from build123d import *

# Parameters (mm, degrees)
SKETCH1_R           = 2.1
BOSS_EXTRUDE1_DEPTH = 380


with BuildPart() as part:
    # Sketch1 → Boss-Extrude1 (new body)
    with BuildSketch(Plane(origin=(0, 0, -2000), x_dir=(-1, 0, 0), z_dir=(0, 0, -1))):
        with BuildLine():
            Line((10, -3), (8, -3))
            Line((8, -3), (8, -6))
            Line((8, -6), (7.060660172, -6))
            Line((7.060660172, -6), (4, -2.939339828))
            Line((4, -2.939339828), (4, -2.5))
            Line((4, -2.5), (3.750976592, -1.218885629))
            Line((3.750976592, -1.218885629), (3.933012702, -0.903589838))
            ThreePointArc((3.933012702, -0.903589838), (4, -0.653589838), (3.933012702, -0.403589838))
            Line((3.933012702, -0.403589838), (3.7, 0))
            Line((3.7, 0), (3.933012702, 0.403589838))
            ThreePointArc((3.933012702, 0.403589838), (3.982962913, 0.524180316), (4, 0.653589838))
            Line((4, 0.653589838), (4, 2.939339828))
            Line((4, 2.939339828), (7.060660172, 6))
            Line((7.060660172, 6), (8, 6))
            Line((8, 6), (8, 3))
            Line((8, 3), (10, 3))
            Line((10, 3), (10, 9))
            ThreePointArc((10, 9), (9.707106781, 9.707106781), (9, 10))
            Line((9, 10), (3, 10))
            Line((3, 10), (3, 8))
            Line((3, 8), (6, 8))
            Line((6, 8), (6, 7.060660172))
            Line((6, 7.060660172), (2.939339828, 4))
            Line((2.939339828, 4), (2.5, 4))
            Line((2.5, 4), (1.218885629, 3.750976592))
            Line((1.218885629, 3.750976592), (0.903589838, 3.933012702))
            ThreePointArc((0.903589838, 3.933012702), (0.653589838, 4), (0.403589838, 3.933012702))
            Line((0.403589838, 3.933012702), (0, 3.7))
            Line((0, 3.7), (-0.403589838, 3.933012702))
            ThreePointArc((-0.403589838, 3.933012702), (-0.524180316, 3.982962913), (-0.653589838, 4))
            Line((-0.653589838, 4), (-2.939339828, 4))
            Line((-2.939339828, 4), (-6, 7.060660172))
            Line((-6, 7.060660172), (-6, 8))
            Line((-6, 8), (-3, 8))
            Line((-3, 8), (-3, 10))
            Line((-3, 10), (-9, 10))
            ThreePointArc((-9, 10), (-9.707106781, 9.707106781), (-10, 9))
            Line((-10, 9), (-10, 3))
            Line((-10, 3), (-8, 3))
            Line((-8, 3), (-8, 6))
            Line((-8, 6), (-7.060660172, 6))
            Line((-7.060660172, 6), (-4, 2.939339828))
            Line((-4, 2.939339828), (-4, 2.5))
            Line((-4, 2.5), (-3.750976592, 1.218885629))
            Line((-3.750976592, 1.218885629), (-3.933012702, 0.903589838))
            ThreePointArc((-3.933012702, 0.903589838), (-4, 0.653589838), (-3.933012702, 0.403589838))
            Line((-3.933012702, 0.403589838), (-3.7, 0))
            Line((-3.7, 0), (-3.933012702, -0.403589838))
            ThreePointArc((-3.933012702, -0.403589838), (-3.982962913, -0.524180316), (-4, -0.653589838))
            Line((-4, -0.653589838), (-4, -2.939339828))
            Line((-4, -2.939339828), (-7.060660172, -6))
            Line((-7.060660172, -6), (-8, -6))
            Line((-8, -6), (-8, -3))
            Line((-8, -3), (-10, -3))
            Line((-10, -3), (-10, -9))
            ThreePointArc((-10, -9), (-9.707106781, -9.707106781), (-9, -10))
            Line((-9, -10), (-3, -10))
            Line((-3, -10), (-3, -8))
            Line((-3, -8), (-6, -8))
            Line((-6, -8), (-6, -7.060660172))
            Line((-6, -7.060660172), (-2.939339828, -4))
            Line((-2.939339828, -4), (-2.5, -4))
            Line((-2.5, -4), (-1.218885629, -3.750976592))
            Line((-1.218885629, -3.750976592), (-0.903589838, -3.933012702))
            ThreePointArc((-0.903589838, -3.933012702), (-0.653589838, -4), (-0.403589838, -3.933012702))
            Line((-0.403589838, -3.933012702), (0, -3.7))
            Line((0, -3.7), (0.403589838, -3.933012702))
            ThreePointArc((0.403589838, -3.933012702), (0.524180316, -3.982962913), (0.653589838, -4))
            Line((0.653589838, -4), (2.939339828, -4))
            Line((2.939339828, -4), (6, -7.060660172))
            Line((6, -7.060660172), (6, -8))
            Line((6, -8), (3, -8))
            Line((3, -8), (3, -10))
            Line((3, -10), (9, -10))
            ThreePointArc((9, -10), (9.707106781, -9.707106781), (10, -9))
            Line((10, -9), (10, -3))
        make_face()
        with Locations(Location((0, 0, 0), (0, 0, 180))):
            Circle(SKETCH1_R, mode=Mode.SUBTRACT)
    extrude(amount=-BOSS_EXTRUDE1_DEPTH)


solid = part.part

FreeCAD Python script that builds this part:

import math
import FreeCAD as App
import Part
import Sketcher

V = App.Vector
Q = App.Units.Quantity

doc = App.newDocument("Part")
body = doc.addObject("PartDesign::Body", "Body")

# Sketch on XY plane
sketch1 = body.newObject("Sketcher::SketchObject", "Sketch")
sketch1.AttachmentSupport = (doc.getObject("XY_Plane"), [""])
sketch1.MapMode = "FlatFace"
sketch1.AttachmentOffset = App.Placement(V(0, 0, -2000), App.Rotation())
sketch1.addGeometry(Part.LineSegment(V(-10, -3, 0), V(-8, -3, 0)), False)
sketch1.addGeometry(Part.LineSegment(V(-8, -3, 0), V(-8, -6, 0)), False)
sketch1.addGeometry(Part.LineSegment(V(-8, -6, 0), V(-7.06066, -6, 0)), False)
sketch1.addGeometry(Part.LineSegment(V(-7.06066, -6, 0), V(-4, -2.93934, 0)), False)
sketch1.addGeometry(Part.LineSegment(V(-4, -2.93934, 0), V(-4, -2.5, 0)), False)
sketch1.addGeometry(Part.LineSegment(V(-4, -2.5, 0), V(-3.750977, -1.218886, 0)), False)
sketch1.addGeometry(Part.LineSegment(V(-3.750977, -1.218886, 0), V(-3.933013, -0.90359, 0)), False)
sketch1.addGeometry(Part.ArcOfCircle(Part.Circle(V(-3.5, -0.65359, 0), V(0, 0, 1), 0.5), math.radians(150), math.radians(210)), False)
sketch1.addGeometry(Part.LineSegment(V(-3.933013, -0.40359, 0), V(-3.7, 0, 0)), False)
sketch1.addGeometry(Part.LineSegment(V(-3.7, 0, 0), V(-3.933013, 0.40359, 0)), False)
sketch1.addGeometry(Part.ArcOfCircle(Part.Circle(V(-3.5, 0.65359, 0), V(0, 0, 1), 0.5), math.radians(-180), math.radians(-150)), False)
sketch1.addGeometry(Part.LineSegment(V(-4, 0.65359, 0), V(-4, 2.93934, 0)), False)
sketch1.addGeometry(Part.LineSegment(V(-4, 2.93934, 0), V(-7.06066, 6, 0)), False)
sketch1.addGeometry(Part.LineSegment(V(-7.06066, 6, 0), V(-8, 6, 0)), False)
sketch1.addGeometry(Part.LineSegment(V(-8, 6, 0), V(-8, 3, 0)), False)
sketch1.addGeometry(Part.LineSegment(V(-8, 3, 0), V(-10, 3, 0)), False)
sketch1.addGeometry(Part.LineSegment(V(-10, 3, 0), V(-10, 9, 0)), False)
sketch1.addGeometry(Part.ArcOfCircle(Part.Circle(V(-9, 9, 0), V(0, 0, 1), 1), math.radians(90), math.radians(180)), False)
sketch1.addGeometry(Part.LineSegment(V(-9, 10, 0), V(-3, 10, 0)), False)
sketch1.addGeometry(Part.LineSegment(V(-3, 10, 0), V(-3, 8, 0)), False)
sketch1.addGeometry(Part.LineSegment(V(-3, 8, 0), V(-6, 8, 0)), False)
sketch1.addGeometry(Part.LineSegment(V(-6, 8, 0), V(-6, 7.06066, 0)), False)
sketch1.addGeometry(Part.LineSegment(V(-6, 7.06066, 0), V(-2.93934, 4, 0)), False)
sketch1.addGeometry(Part.LineSegment(V(-2.93934, 4, 0), V(-2.5, 4, 0)), False)
sketch1.addGeometry(Part.LineSegment(V(-2.5, 4, 0), V(-1.218886, 3.750977, 0)), False)
sketch1.addGeometry(Part.LineSegment(V(-1.218886, 3.750977, 0), V(-0.90359, 3.933013, 0)), False)
sketch1.addGeometry(Part.ArcOfCircle(Part.Circle(V(-0.65359, 3.5, 0), V(0, 0, 1), 0.5), math.radians(60), math.radians(120)), False)
sketch1.addGeometry(Part.LineSegment(V(-0.40359, 3.933013, 0), V(0, 3.7, 0)), False)
sketch1.addGeometry(Part.LineSegment(V(0, 3.7, 0), V(0.40359, 3.933013, 0)), False)
sketch1.addGeometry(Part.ArcOfCircle(Part.Circle(V(0.65359, 3.5, 0), V(0, 0, 1), 0.5), math.radians(90), math.radians(120)), False)
sketch1.addGeometry(Part.LineSegment(V(0.65359, 4, 0), V(2.93934, 4, 0)), False)
sketch1.addGeometry(Part.LineSegment(V(2.93934, 4, 0), V(6, 7.06066, 0)), False)
sketch1.addGeometry(Part.LineSegment(V(6, 7.06066, 0), V(6, 8, 0)), False)
sketch1.addGeometry(Part.LineSegment(V(6, 8, 0), V(3, 8, 0)), False)
sketch1.addGeometry(Part.LineSegment(V(3, 8, 0), V(3, 10, 0)), False)
sketch1.addGeometry(Part.LineSegment(V(3, 10, 0), V(9, 10, 0)), False)
sketch1.addGeometry(Part.ArcOfCircle(Part.Circle(V(9, 9, 0), V(0, 0, 1), 1), math.radians(0), math.radians(90)), False)
sketch1.addGeometry(Part.LineSegment(V(10, 9, 0), V(10, 3, 0)), False)
sketch1.addGeometry(Part.LineSegment(V(10, 3, 0), V(8, 3, 0)), False)
sketch1.addGeometry(Part.LineSegment(V(8, 3, 0), V(8, 6, 0)), False)
sketch1.addGeometry(Part.LineSegment(V(8, 6, 0), V(7.06066, 6, 0)), False)
sketch1.addGeometry(Part.LineSegment(V(7.06066, 6, 0), V(4, 2.93934, 0)), False)
sketch1.addGeometry(Part.LineSegment(V(4, 2.93934, 0), V(4, 2.5, 0)), False)
sketch1.addGeometry(Part.LineSegment(V(4, 2.5, 0), V(3.750977, 1.218886, 0)), False)
sketch1.addGeometry(Part.LineSegment(V(3.750977, 1.218886, 0), V(3.933013, 0.90359, 0)), False)
sketch1.addGeometry(Part.ArcOfCircle(Part.Circle(V(3.5, 0.65359, 0), V(0, 0, 1), 0.5), math.radians(-30), math.radians(30)), False)
sketch1.addGeometry(Part.LineSegment(V(3.933013, 0.40359, 0), V(3.7, 0, 0)), False)
sketch1.addGeometry(Part.LineSegment(V(3.7, 0, 0), V(3.933013, -0.40359, 0)), False)
sketch1.addGeometry(Part.ArcOfCircle(Part.Circle(V(3.5, -0.65359, 0), V(0, 0, 1), 0.5), math.radians(0), math.radians(30)), False)
sketch1.addGeometry(Part.LineSegment(V(4, -0.65359, 0), V(4, -2.93934, 0)), False)
sketch1.addGeometry(Part.LineSegment(V(4, -2.93934, 0), V(7.06066, -6, 0)), False)
sketch1.addGeometry(Part.LineSegment(V(7.06066, -6, 0), V(8, -6, 0)), False)
sketch1.addGeometry(Part.LineSegment(V(8, -6, 0), V(8, -3, 0)), False)
sketch1.addGeometry(Part.LineSegment(V(8, -3, 0), V(10, -3, 0)), False)
sketch1.addGeometry(Part.LineSegment(V(10, -3, 0), V(10, -9, 0)), False)
sketch1.addGeometry(Part.ArcOfCircle(Part.Circle(V(9, -9, 0), V(0, 0, 1), 1), math.radians(-90), math.radians(0)), False)
sketch1.addGeometry(Part.LineSegment(V(9, -10, 0), V(3, -10, 0)), False)
sketch1.addGeometry(Part.LineSegment(V(3, -10, 0), V(3, -8, 0)), False)
sketch1.addGeometry(Part.LineSegment(V(3, -8, 0), V(6, -8, 0)), False)
sketch1.addGeometry(Part.LineSegment(V(6, -8, 0), V(6, -7.06066, 0)), False)
sketch1.addGeometry(Part.LineSegment(V(6, -7.06066, 0), V(2.93934, -4, 0)), False)
sketch1.addGeometry(Part.LineSegment(V(2.93934, -4, 0), V(2.5, -4, 0)), False)
sketch1.addGeometry(Part.LineSegment(V(2.5, -4, 0), V(1.218886, -3.750977, 0)), False)
sketch1.addGeometry(Part.LineSegment(V(1.218886, -3.750977, 0), V(0.90359, -3.933013, 0)), False)
sketch1.addGeometry(Part.ArcOfCircle(Part.Circle(V(0.65359, -3.5, 0), V(0, 0, 1), 0.5), math.radians(-120), math.radians(-60)), False)
sketch1.addGeometry(Part.LineSegment(V(0.40359, -3.933013, 0), V(0, -3.7, 0)), False)
sketch1.addGeometry(Part.LineSegment(V(0, -3.7, 0), V(-0.40359, -3.933013, 0)), False)
sketch1.addGeometry(Part.ArcOfCircle(Part.Circle(V(-0.65359, -3.5, 0), V(0, 0, 1), 0.5), math.radians(-90), math.radians(-60)), False)
sketch1.addGeometry(Part.LineSegment(V(-0.65359, -4, 0), V(-2.93934, -4, 0)), False)
sketch1.addGeometry(Part.LineSegment(V(-2.93934, -4, 0), V(-6, -7.06066, 0)), False)
sketch1.addGeometry(Part.LineSegment(V(-6, -7.06066, 0), V(-6, -8, 0)), False)
sketch1.addGeometry(Part.LineSegment(V(-6, -8, 0), V(-3, -8, 0)), False)
sketch1.addGeometry(Part.LineSegment(V(-3, -8, 0), V(-3, -10, 0)), False)
sketch1.addGeometry(Part.LineSegment(V(-3, -10, 0), V(-9, -10, 0)), False)
sketch1.addGeometry(Part.ArcOfCircle(Part.Circle(V(-9, -9, 0), V(0, 0, 1), 1), math.radians(-180), math.radians(-90)), False)
sketch1.addGeometry(Part.LineSegment(V(-10, -9, 0), V(-10, -3, 0)), False)
sketch1.addGeometry(Part.Circle(V(0, 0, 0), V(0, 0, 1), 2.1), False)
sketch1.addConstraint(Sketcher.Constraint("Coincident", 0, 2, 1, 1))
sketch1.addConstraint(Sketcher.Constraint("Coincident", 1, 2, 2, 1))
sketch1.addConstraint(Sketcher.Constraint("Coincident", 2, 2, 3, 1))
sketch1.addConstraint(Sketcher.Constraint("Coincident", 3, 2, 4, 1))
sketch1.addConstraint(Sketcher.Constraint("Coincident", 4, 2, 5, 1))
sketch1.addConstraint(Sketcher.Constraint("Coincident", 5, 2, 6, 1))
sketch1.addConstraint(Sketcher.Constraint("Tangent", 6, 2, 7, 2))
sketch1.addConstraint(Sketcher.Constraint("Tangent", 7, 1, 8, 1))
sketch1.addConstraint(Sketcher.Constraint("Coincident", 8, 2, 9, 1))
sketch1.addConstraint(Sketcher.Constraint("Tangent", 9, 2, 10, 2))
sketch1.addConstraint(Sketcher.Constraint("Tangent", 10, 1, 11, 1))
sketch1.addConstraint(Sketcher.Constraint("Coincident", 11, 2, 12, 1))
sketch1.addConstraint(Sketcher.Constraint("Coincident", 12, 2, 13, 1))
sketch1.addConstraint(Sketcher.Constraint("Coincident", 13, 2, 14, 1))
sketch1.addConstraint(Sketcher.Constraint("Coincident", 14, 2, 15, 1))
sketch1.addConstraint(Sketcher.Constraint("Coincident", 15, 2, 16, 1))
sketch1.addConstraint(Sketcher.Constraint("Tangent", 16, 2, 17, 2))
sketch1.addConstraint(Sketcher.Constraint("Tangent", 17, 1, 18, 1))
sketch1.addConstraint(Sketcher.Constraint("Coincident", 18, 2, 19, 1))
sketch1.addConstraint(Sketcher.Constraint("Coincident", 19, 2, 20, 1))
sketch1.addConstraint(Sketcher.Constraint("Coincident", 20, 2, 21, 1))
sketch1.addConstraint(Sketcher.Constraint("Coincident", 21, 2, 22, 1))
sketch1.addConstraint(Sketcher.Constraint("Coincident", 22, 2, 23, 1))
sketch1.addConstraint(Sketcher.Constraint("Coincident", 23, 2, 24, 1))
sketch1.addConstraint(Sketcher.Constraint("Coincident", 24, 2, 25, 1))
sketch1.addConstraint(Sketcher.Constraint("Tangent", 25, 2, 26, 2))
sketch1.addConstraint(Sketcher.Constraint("Tangent", 26, 1, 27, 1))
sketch1.addConstraint(Sketcher.Constraint("Coincident", 27, 2, 28, 1))
sketch1.addConstraint(Sketcher.Constraint("Tangent", 28, 2, 29, 2))
sketch1.addConstraint(Sketcher.Constraint("Tangent", 29, 1, 30, 1))
sketch1.addConstraint(Sketcher.Constraint("Coincident", 30, 2, 31, 1))
sketch1.addConstraint(Sketcher.Constraint("Coincident", 31, 2, 32, 1))
sketch1.addConstraint(Sketcher.Constraint("Coincident", 32, 2, 33, 1))
sketch1.addConstraint(Sketcher.Constraint("Coincident", 33, 2, 34, 1))
sketch1.addConstraint(Sketcher.Constraint("Coincident", 34, 2, 35, 1))
sketch1.addConstraint(Sketcher.Constraint("Tangent", 35, 2, 36, 2))
sketch1.addConstraint(Sketcher.Constraint("Tangent", 36, 1, 37, 1))
sketch1.addConstraint(Sketcher.Constraint("Coincident", 37, 2, 38, 1))
sketch1.addConstraint(Sketcher.Constraint("Coincident", 38, 2, 39, 1))
sketch1.addConstraint(Sketcher.Constraint("Coincident", 39, 2, 40, 1))
sketch1.addConstraint(Sketcher.Constraint("Coincident", 40, 2, 41, 1))
sketch1.addConstraint(Sketcher.Constraint("Coincident", 41, 2, 42, 1))
sketch1.addConstraint(Sketcher.Constraint("Coincident", 42, 2, 43, 1))
sketch1.addConstraint(Sketcher.Constraint("Coincident", 43, 2, 44, 1))
sketch1.addConstraint(Sketcher.Constraint("Tangent", 44, 2, 45, 2))
sketch1.addConstraint(Sketcher.Constraint("Tangent", 45, 1, 46, 1))
sketch1.addConstraint(Sketcher.Constraint("Coincident", 46, 2, 47, 1))
sketch1.addConstraint(Sketcher.Constraint("Tangent", 47, 2, 48, 2))
sketch1.addConstraint(Sketcher.Constraint("Tangent", 48, 1, 49, 1))
sketch1.addConstraint(Sketcher.Constraint("Coincident", 49, 2, 50, 1))
sketch1.addConstraint(Sketcher.Constraint("Coincident", 50, 2, 51, 1))
sketch1.addConstraint(Sketcher.Constraint("Coincident", 51, 2, 52, 1))
sketch1.addConstraint(Sketcher.Constraint("Coincident", 52, 2, 53, 1))
sketch1.addConstraint(Sketcher.Constraint("Coincident", 53, 2, 54, 1))
sketch1.addConstraint(Sketcher.Constraint("Tangent", 54, 2, 55, 2))
sketch1.addConstraint(Sketcher.Constraint("Tangent", 55, 1, 56, 1))
sketch1.addConstraint(Sketcher.Constraint("Coincident", 56, 2, 57, 1))
sketch1.addConstraint(Sketcher.Constraint("Coincident", 57, 2, 58, 1))
sketch1.addConstraint(Sketcher.Constraint("Coincident", 58, 2, 59, 1))
sketch1.addConstraint(Sketcher.Constraint("Coincident", 59, 2, 60, 1))
sketch1.addConstraint(Sketcher.Constraint("Coincident", 60, 2, 61, 1))
sketch1.addConstraint(Sketcher.Constraint("Coincident", 61, 2, 62, 1))
sketch1.addConstraint(Sketcher.Constraint("Coincident", 62, 2, 63, 1))
sketch1.addConstraint(Sketcher.Constraint("Tangent", 63, 2, 64, 2))
sketch1.addConstraint(Sketcher.Constraint("Tangent", 64, 1, 65, 1))
sketch1.addConstraint(Sketcher.Constraint("Coincident", 65, 2, 66, 1))
sketch1.addConstraint(Sketcher.Constraint("Tangent", 66, 2, 67, 2))
sketch1.addConstraint(Sketcher.Constraint("Tangent", 67, 1, 68, 1))
sketch1.addConstraint(Sketcher.Constraint("Coincident", 68, 2, 69, 1))
sketch1.addConstraint(Sketcher.Constraint("Coincident", 69, 2, 70, 1))
sketch1.addConstraint(Sketcher.Constraint("Coincident", 70, 2, 71, 1))
sketch1.addConstraint(Sketcher.Constraint("Coincident", 71, 2, 72, 1))
sketch1.addConstraint(Sketcher.Constraint("Coincident", 72, 2, 73, 1))
sketch1.addConstraint(Sketcher.Constraint("Tangent", 73, 2, 74, 2))
sketch1.addConstraint(Sketcher.Constraint("Tangent", 74, 1, 75, 1))
sketch1.addConstraint(Sketcher.Constraint("Coincident", 75, 2, 0, 1))
sketch1.addConstraint(Sketcher.Constraint("Horizontal", 0))
sketch1.addConstraint(Sketcher.Constraint("Vertical", 1))
sketch1.addConstraint(Sketcher.Constraint("Horizontal", 2))
sketch1.addConstraint(Sketcher.Constraint("Vertical", 4))
sketch1.addConstraint(Sketcher.Constraint("Vertical", 11))
sketch1.addConstraint(Sketcher.Constraint("Horizontal", 13))
sketch1.addConstraint(Sketcher.Constraint("Vertical", 14))
sketch1.addConstraint(Sketcher.Constraint("Horizontal", 15))
sketch1.addConstraint(Sketcher.Constraint("Vertical", 16))
sketch1.addConstraint(Sketcher.Constraint("Horizontal", 18))
sketch1.addConstraint(Sketcher.Constraint("Vertical", 19))
sketch1.addConstraint(Sketcher.Constraint("Horizontal", 20))
sketch1.addConstraint(Sketcher.Constraint("Vertical", 21))
sketch1.addConstraint(Sketcher.Constraint("Horizontal", 23))
sketch1.addConstraint(Sketcher.Constraint("Horizontal", 30))
sketch1.addConstraint(Sketcher.Constraint("Vertical", 32))
sketch1.addConstraint(Sketcher.Constraint("Horizontal", 33))
sketch1.addConstraint(Sketcher.Constraint("Vertical", 34))
sketch1.addConstraint(Sketcher.Constraint("Horizontal", 35))
sketch1.addConstraint(Sketcher.Constraint("Vertical", 37))
sketch1.addConstraint(Sketcher.Constraint("Horizontal", 38))
sketch1.addConstraint(Sketcher.Constraint("Vertical", 39))
sketch1.addConstraint(Sketcher.Constraint("Horizontal", 40))
sketch1.addConstraint(Sketcher.Constraint("Vertical", 42))
sketch1.addConstraint(Sketcher.Constraint("Vertical", 49))
sketch1.addConstraint(Sketcher.Constraint("Horizontal", 51))
sketch1.addConstraint(Sketcher.Constraint("Vertical", 52))
sketch1.addConstraint(Sketcher.Constraint("Horizontal", 53))
sketch1.addConstraint(Sketcher.Constraint("Vertical", 54))
sketch1.addConstraint(Sketcher.Constraint("Horizontal", 56))
sketch1.addConstraint(Sketcher.Constraint("Vertical", 57))
sketch1.addConstraint(Sketcher.Constraint("Horizontal", 58))
sketch1.addConstraint(Sketcher.Constraint("Vertical", 59))
sketch1.addConstraint(Sketcher.Constraint("Horizontal", 61))
sketch1.addConstraint(Sketcher.Constraint("Horizontal", 68))
sketch1.addConstraint(Sketcher.Constraint("Vertical", 70))
sketch1.addConstraint(Sketcher.Constraint("Horizontal", 71))
sketch1.addConstraint(Sketcher.Constraint("Vertical", 72))
sketch1.addConstraint(Sketcher.Constraint("Horizontal", 73))
sketch1.addConstraint(Sketcher.Constraint("Vertical", 75))
sketch1.addConstraint(Sketcher.Constraint("Coincident", 76, 3, -1, 1))
sketch1.addConstraint(Sketcher.Constraint("Equal", 7, 10))
sketch1.addConstraint(Sketcher.Constraint("Equal", 10, 26))
sketch1.addConstraint(Sketcher.Constraint("Equal", 26, 29))
sketch1.addConstraint(Sketcher.Constraint("Equal", 17, 36))
sketch1.addConstraint(Sketcher.Constraint("Equal", 29, 45))
sketch1.addConstraint(Sketcher.Constraint("Equal", 45, 48))
sketch1.addConstraint(Sketcher.Constraint("Equal", 36, 55))
sketch1.addConstraint(Sketcher.Constraint("Equal", 48, 64))
sketch1.addConstraint(Sketcher.Constraint("Equal", 64, 67))
sketch1.addConstraint(Sketcher.Constraint("Equal", 55, 74))
sketch1.addConstraint(Sketcher.Constraint("Symmetric", 7, 3, 45, 3, -1, 1))
sketch1.addConstraint(Sketcher.Constraint("Symmetric", 10, 3, 48, 3, -1, 1))
sketch1.addConstraint(Sketcher.Constraint("Symmetric", 17, 3, 55, 3, -1, 1))
sketch1.addConstraint(Sketcher.Constraint("Symmetric", 26, 3, 64, 3, -1, 1))
sketch1.addConstraint(Sketcher.Constraint("Symmetric", 29, 3, 67, 3, -1, 1))
sketch1.addConstraint(Sketcher.Constraint("Symmetric", 36, 3, 74, 3, -1, 1))
sketch1.addConstraint(Sketcher.Constraint("Symmetric", 0, 2, 38, 2, -1, 1))
sketch1.addConstraint(Sketcher.Constraint("Symmetric", 2, 2, 40, 2, -1, 1))
sketch1.addConstraint(Sketcher.Constraint("Symmetric", 3, 2, 41, 2, -1, 1))
sketch1.addConstraint(Sketcher.Constraint("Symmetric", 5, 2, 43, 2, -1, 1))
sketch1.addConstraint(Sketcher.Constraint("Symmetric", 8, 2, 46, 2, -1, 1))
sketch1.addConstraint(Sketcher.Constraint("Symmetric", 12, 2, 50, 2, -1, 1))
sketch1.addConstraint(Sketcher.Constraint("Symmetric", 14, 2, 52, 2, -1, 1))
sketch1.addConstraint(Sketcher.Constraint("Symmetric", 19, 2, 57, 2, -1, 1))
sketch1.addConstraint(Sketcher.Constraint("Symmetric", 21, 2, 59, 2, -1, 1))
sketch1.addConstraint(Sketcher.Constraint("Symmetric", 22, 2, 60, 2, -1, 1))
sketch1.addConstraint(Sketcher.Constraint("Symmetric", 24, 2, 62, 2, -1, 1))
sketch1.addConstraint(Sketcher.Constraint("Symmetric", 27, 2, 65, 2, -1, 1))
sketch1.addConstraint(Sketcher.Constraint("Symmetric", 31, 2, 69, 2, -1, 1))
sketch1.addConstraint(Sketcher.Constraint("Symmetric", 33, 2, 71, 2, -1, 1))
sketch1.addConstraint(Sketcher.Constraint("Symmetric", 26, 3, 29, 3, -2))
sketch1.addConstraint(Sketcher.Constraint("Symmetric", 17, 3, 36, 3, -2))
sketch1.addConstraint(Sketcher.Constraint("Symmetric", 10, 3, 45, 3, -2))
sketch1.addConstraint(Sketcher.Constraint("Symmetric", 22, 2, 30, 2, -2))
sketch1.addConstraint(Sketcher.Constraint("Symmetric", 21, 2, 31, 2, -2))
sketch1.addConstraint(Sketcher.Constraint("Symmetric", 19, 2, 33, 2, -2))
sketch1.addConstraint(Sketcher.Constraint("Symmetric", 14, 2, 38, 2, -2))
sketch1.addConstraint(Sketcher.Constraint("Symmetric", 12, 2, 40, 2, -2))
sketch1.addConstraint(Sketcher.Constraint("Symmetric", 11, 2, 41, 2, -2))
sketch1.addConstraint(Sketcher.Constraint("PointOnObject", 8, 2, -1))
sketch1.addConstraint(Sketcher.Constraint("PointOnObject", 27, 2, -2))
sketch1.addConstraint(Sketcher.Constraint("Parallel", 6, 9))
sketch1.addConstraint(Sketcher.Constraint("Perpendicular", 3, 12))
sketch1.addConstraint(Sketcher.Constraint("Parallel", 12, 22))
sketch1.addConstraint(Sketcher.Constraint("Perpendicular", 5, 24))
sketch1.addConstraint(Sketcher.Constraint("Perpendicular", 9, 25))
sketch1.addConstraint(Sketcher.Constraint("Perpendicular", 8, 27))
sketch1.addConstraint(Sketcher.Constraint("Perpendicular", 24, 43))
sketch1.addConstraint(Sketcher.Constraint("Perpendicular", 41, 50))
sketch1.addConstraint(Sketcher.Constraint("Perpendicular", 43, 62))
sketch1.addConstraint(Sketcher.Constraint("Perpendicular", 60, 69))
sketch1.addConstraint(Sketcher.Constraint("Equal", 71, 1))
sketch1.addConstraint(Sketcher.Constraint("Equal", 61, 4))
sketch1.addConstraint(Sketcher.Constraint("Equal", 68, 11))
sketch1.addConstraint(Sketcher.Constraint("Equal", 73, 16))
sketch1.addConstraint(Sketcher.Constraint("Equal", 53, 19))
sketch1.addConstraint(Sketcher.Constraint("Equal", 51, 21))
sketch1.addConstraint(Sketcher.Constraint("Equal", 12, 22))
sketch1.addConstraint(Sketcher.Constraint("Equal", 9, 27))
sketch1.addConstraint(Sketcher.Constraint("Radius", 17, Q("1 mm")))
sketch1.addConstraint(Sketcher.Constraint("Diameter", 76, Q("4.2 mm")))
sketch1.addConstraint(Sketcher.Constraint("Radius", 7, Q("0.5 mm")))
sketch1.addConstraint(Sketcher.Constraint("DistanceX", 0, 1, 0, 2, Q("2 mm")))
sketch1.addConstraint(Sketcher.Constraint("DistanceX", 18, 1, 18, 2, Q("6 mm")))
sketch1.addConstraint(Sketcher.Constraint("DistanceX", 20, 2, 20, 1, Q("3 mm")))
sketch1.addConstraint(Sketcher.Constraint("Angle", 5, Q("79 deg")))
sketch1.addConstraint(Sketcher.Constraint("Angle", 6, Q("120 deg")))
sketch1.addConstraint(Sketcher.Constraint("DistanceX", 17, 3, -1, 1, Q("9 mm")))
sketch1.addConstraint(Sketcher.Constraint("DistanceX", 3, 2, -1, 1, Q("4 mm")))
sketch1.addConstraint(Sketcher.Constraint("DistanceY", 4, 2, -1, 1, Q("2.5 mm")))
sketch1.addConstraint(Sketcher.Constraint("DistanceX", 8, 2, -1, 1, Q("3.7 mm")))
sketch1.addConstraint(Sketcher.Constraint("DistanceX", 2, 1, 2, 2, Q("0.93934 mm")))
pad1 = body.newObject("PartDesign::Pad", "Pad")
pad1.Profile = sketch1
pad1.Length = 380

doc.recompute()
